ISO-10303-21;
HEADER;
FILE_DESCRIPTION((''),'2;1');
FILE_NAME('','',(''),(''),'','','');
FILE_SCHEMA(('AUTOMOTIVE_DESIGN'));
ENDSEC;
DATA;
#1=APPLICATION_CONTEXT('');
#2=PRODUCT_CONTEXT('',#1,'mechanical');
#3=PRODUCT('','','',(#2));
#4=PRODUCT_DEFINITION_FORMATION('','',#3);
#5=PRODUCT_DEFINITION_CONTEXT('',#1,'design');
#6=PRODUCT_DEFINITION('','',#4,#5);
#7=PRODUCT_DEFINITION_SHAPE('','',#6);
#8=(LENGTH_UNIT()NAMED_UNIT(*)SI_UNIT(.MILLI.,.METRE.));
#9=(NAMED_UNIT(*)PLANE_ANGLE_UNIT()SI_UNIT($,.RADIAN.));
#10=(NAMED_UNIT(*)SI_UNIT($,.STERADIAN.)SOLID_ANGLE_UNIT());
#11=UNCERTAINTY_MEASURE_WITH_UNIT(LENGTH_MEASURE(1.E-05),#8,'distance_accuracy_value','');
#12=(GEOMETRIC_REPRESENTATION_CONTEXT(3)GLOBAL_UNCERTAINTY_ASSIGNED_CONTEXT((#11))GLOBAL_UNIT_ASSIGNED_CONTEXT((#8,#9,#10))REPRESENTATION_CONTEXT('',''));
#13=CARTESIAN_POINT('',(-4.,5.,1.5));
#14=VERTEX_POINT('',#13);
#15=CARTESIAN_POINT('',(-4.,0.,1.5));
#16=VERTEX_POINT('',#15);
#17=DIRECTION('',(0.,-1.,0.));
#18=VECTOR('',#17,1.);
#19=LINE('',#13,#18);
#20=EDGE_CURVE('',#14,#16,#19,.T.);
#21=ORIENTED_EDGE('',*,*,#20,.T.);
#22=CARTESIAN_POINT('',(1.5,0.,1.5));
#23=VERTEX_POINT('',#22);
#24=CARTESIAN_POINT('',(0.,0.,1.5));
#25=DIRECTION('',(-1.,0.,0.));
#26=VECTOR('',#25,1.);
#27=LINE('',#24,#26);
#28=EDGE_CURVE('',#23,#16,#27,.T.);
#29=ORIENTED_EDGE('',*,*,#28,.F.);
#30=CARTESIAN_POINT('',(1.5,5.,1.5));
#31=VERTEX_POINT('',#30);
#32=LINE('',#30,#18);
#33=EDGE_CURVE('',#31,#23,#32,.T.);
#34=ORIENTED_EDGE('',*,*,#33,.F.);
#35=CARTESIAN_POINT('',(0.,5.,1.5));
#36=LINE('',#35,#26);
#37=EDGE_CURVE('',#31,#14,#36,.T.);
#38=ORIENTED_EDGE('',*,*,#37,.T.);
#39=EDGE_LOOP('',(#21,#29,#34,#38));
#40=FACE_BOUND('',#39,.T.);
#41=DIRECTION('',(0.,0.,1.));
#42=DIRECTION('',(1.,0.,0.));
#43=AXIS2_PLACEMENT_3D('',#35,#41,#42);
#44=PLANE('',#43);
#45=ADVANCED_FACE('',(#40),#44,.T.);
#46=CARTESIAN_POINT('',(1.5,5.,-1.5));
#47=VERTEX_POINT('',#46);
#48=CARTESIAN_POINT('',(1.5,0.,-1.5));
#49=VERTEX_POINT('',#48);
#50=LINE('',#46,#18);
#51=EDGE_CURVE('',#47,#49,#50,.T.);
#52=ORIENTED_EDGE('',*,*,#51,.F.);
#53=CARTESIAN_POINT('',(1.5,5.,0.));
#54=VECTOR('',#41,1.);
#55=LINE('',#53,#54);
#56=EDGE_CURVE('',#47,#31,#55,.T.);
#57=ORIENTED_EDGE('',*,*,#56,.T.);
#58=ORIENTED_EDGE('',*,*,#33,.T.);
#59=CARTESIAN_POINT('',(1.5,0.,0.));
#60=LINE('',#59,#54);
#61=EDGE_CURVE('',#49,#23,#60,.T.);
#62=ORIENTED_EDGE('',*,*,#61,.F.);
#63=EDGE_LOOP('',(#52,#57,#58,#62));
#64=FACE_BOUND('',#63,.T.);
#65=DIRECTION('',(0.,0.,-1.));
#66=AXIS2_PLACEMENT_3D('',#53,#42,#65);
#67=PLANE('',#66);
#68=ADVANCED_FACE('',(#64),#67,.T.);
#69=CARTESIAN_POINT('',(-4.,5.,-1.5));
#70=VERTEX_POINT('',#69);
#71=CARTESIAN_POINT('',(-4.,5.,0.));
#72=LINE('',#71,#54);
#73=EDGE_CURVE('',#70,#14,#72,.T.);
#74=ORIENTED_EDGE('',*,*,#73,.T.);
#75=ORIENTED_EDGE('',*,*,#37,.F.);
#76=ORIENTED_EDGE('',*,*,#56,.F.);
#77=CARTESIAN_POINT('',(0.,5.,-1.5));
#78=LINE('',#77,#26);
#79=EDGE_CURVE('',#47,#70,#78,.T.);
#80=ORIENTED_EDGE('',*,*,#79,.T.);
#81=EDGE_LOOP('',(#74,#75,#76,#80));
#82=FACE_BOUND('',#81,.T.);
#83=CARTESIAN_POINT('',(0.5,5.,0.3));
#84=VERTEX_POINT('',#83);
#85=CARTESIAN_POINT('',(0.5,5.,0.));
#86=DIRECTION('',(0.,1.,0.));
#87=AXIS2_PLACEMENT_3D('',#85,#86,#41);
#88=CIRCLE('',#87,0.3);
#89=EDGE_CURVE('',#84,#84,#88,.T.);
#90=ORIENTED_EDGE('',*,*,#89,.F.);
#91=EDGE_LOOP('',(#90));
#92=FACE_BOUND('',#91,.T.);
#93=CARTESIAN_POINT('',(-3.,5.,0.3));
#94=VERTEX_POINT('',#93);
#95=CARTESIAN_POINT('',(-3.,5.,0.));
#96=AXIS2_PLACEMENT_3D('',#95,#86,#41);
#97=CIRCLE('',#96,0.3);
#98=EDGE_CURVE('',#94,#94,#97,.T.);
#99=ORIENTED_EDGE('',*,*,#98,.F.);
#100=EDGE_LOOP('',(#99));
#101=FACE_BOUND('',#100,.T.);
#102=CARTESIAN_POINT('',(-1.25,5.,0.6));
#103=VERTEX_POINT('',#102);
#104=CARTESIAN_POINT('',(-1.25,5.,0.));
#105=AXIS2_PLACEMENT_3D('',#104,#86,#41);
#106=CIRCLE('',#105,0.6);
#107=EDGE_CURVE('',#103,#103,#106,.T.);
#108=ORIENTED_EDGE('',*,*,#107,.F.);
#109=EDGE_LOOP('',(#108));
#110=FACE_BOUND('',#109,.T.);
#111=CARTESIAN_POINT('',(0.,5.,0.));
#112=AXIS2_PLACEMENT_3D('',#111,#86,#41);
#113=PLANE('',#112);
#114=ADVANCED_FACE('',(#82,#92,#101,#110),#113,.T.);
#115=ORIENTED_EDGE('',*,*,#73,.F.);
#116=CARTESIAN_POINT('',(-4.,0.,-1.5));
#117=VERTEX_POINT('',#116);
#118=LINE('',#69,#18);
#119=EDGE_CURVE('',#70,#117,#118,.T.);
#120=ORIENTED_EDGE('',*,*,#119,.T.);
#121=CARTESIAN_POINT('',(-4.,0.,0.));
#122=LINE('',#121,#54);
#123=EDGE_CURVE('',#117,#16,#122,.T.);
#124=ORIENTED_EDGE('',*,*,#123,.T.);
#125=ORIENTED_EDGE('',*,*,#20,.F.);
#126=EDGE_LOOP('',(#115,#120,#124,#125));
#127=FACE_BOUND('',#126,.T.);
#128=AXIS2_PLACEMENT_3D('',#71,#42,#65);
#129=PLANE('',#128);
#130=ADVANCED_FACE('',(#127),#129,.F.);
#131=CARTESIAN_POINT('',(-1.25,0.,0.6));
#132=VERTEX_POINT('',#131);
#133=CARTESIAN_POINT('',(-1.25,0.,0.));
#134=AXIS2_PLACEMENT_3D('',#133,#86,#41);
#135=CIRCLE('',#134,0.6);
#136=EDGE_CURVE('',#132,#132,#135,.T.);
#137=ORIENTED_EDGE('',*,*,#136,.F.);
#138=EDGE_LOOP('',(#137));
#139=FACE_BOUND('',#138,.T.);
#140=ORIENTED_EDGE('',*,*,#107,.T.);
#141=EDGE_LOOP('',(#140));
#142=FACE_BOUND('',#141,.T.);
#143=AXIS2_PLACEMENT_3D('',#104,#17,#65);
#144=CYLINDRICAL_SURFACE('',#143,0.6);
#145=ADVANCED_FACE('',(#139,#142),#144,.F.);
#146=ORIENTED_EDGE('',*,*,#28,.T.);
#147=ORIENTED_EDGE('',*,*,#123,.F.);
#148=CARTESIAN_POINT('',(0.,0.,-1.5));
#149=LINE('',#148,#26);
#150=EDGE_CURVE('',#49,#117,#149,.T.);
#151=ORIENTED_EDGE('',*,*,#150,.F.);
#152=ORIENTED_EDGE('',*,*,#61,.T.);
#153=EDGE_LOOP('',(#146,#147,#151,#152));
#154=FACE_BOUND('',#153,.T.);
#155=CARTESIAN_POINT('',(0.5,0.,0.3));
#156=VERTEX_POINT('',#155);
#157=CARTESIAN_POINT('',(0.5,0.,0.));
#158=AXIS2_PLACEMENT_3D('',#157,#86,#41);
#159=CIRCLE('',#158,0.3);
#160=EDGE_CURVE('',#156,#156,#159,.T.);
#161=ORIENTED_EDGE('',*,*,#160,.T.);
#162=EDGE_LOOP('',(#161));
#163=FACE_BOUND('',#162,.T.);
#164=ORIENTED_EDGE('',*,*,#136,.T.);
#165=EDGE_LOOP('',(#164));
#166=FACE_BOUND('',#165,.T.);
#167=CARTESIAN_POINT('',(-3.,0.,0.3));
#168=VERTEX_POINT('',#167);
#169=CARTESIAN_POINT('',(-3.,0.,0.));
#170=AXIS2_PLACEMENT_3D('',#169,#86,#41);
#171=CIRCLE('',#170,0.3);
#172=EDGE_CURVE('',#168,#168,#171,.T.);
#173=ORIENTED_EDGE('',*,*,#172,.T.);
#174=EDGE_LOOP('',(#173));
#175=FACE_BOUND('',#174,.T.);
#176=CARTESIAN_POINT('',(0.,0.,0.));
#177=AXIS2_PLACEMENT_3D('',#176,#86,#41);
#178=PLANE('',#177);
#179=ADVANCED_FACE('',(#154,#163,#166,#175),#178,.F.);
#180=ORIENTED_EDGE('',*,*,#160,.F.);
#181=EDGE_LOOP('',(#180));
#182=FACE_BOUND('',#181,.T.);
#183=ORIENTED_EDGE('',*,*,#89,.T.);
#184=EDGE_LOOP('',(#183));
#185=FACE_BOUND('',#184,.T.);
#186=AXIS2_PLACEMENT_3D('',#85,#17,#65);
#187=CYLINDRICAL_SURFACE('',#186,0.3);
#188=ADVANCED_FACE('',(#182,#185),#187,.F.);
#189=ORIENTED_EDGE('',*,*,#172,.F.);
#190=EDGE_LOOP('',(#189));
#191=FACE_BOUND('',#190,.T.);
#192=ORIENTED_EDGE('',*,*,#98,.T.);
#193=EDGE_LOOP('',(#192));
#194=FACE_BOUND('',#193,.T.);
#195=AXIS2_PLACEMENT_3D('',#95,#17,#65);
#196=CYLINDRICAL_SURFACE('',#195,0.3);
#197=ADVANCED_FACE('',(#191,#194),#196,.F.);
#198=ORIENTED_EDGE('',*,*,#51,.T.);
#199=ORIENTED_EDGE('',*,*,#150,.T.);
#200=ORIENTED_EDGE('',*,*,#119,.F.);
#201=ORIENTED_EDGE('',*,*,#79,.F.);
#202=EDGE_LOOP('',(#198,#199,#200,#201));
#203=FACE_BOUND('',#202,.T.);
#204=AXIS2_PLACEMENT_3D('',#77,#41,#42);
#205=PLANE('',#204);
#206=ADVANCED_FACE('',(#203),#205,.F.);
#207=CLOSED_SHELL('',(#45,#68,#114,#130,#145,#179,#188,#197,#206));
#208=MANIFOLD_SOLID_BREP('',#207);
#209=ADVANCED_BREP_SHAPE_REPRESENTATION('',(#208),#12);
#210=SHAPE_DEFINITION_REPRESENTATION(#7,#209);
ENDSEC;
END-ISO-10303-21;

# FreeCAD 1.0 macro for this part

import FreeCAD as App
import Part
import Sketcher
from FreeCAD import Vector
Q = App.Units.Quantity


def add_polygon(sketch, points):
    """Adds a closed chain of lines whose ends are joined by coincident constraints."""
    first, n = sketch.GeometryCount, len(points)
    for a, b in zip(points, points[1:] + points[:1]):
        sketch.addGeometry(Part.LineSegment(App.Vector(*a, 0), App.Vector(*b, 0)), False)
    for i in range(n):
        sketch.addConstraint(Sketcher.Constraint("Coincident", first + i, 2, first + (i + 1) % n, 1))

doc = App.newDocument("Part")
body = doc.addObject("PartDesign::Body", "Body")

# Sketch on XZ plane
sketch1 = body.newObject("Sketcher::SketchObject", "Sketch")
sketch1.AttachmentSupport = (doc.getObject("XZ_Plane"), [""])
sketch1.MapMode = "FlatFace"
add_polygon(sketch1, [(-4, -1.5), (-4, 1.5), (1.5, 1.5), (1.5, -1.5)])  # lines 0-3
sketch1.addGeometry(Part.Circle(Vector(-3, 0, 0), Vector(0, 0, 1), 0.3), False)  # 4
sketch1.addGeometry(Part.Circle(Vector(-1.25, 0, 0), Vector(0, 0, 1), 0.6), False)  # 5
sketch1.addGeometry(Part.Circle(Vector(0.5, 0, 0), Vector(0, 0, 1), 0.3), False)  # 6
sketch1.addConstraint([
    Sketcher.Constraint("Vertical", 0),
    Sketcher.Constraint("Horizontal", 1),
    Sketcher.Constraint("Vertical", 2),
    Sketcher.Constraint("Horizontal", 3),
    Sketcher.Constraint("Equal", 4, 6),
    Sketcher.Constraint("PointOnObject", 4, 3, -1),
    Sketcher.Constraint("PointOnObject", 5, 3, -1),
    Sketcher.Constraint("PointOnObject", 6, 3, -1),
    Sketcher.Constraint("Diameter", 4, Q("0.6 mm")),
    Sketcher.Constraint("Diameter", 5, Q("1.2 mm")),
    Sketcher.Constraint("DistanceY", 0, 1, 0, 2, Q("3 mm")),
    Sketcher.Constraint("DistanceX", 1, 1, 1, 2, Q("5.5 mm")),
    Sketcher.Constraint("DistanceX", 4, 3, -1, 1, Q("3 mm")),
    Sketcher.Constraint("DistanceX", 0, 2, -1, 1, Q("4 mm")),
    Sketcher.Constraint("DistanceX", 6, 3, 1, 2, Q("1 mm")),
    Sketcher.Constraint("DistanceY", -1, 1, 0, 2, Q("1.5 mm")),
    Sketcher.Constraint("DistanceX", 5, 3, -1, 1, Q("1.25 mm")),
])
pad1 = body.newObject("PartDesign::Pad", "Pad")
pad1.Profile = sketch1
pad1.Length = 5
pad1.Reversed = True

doc.recompute()
